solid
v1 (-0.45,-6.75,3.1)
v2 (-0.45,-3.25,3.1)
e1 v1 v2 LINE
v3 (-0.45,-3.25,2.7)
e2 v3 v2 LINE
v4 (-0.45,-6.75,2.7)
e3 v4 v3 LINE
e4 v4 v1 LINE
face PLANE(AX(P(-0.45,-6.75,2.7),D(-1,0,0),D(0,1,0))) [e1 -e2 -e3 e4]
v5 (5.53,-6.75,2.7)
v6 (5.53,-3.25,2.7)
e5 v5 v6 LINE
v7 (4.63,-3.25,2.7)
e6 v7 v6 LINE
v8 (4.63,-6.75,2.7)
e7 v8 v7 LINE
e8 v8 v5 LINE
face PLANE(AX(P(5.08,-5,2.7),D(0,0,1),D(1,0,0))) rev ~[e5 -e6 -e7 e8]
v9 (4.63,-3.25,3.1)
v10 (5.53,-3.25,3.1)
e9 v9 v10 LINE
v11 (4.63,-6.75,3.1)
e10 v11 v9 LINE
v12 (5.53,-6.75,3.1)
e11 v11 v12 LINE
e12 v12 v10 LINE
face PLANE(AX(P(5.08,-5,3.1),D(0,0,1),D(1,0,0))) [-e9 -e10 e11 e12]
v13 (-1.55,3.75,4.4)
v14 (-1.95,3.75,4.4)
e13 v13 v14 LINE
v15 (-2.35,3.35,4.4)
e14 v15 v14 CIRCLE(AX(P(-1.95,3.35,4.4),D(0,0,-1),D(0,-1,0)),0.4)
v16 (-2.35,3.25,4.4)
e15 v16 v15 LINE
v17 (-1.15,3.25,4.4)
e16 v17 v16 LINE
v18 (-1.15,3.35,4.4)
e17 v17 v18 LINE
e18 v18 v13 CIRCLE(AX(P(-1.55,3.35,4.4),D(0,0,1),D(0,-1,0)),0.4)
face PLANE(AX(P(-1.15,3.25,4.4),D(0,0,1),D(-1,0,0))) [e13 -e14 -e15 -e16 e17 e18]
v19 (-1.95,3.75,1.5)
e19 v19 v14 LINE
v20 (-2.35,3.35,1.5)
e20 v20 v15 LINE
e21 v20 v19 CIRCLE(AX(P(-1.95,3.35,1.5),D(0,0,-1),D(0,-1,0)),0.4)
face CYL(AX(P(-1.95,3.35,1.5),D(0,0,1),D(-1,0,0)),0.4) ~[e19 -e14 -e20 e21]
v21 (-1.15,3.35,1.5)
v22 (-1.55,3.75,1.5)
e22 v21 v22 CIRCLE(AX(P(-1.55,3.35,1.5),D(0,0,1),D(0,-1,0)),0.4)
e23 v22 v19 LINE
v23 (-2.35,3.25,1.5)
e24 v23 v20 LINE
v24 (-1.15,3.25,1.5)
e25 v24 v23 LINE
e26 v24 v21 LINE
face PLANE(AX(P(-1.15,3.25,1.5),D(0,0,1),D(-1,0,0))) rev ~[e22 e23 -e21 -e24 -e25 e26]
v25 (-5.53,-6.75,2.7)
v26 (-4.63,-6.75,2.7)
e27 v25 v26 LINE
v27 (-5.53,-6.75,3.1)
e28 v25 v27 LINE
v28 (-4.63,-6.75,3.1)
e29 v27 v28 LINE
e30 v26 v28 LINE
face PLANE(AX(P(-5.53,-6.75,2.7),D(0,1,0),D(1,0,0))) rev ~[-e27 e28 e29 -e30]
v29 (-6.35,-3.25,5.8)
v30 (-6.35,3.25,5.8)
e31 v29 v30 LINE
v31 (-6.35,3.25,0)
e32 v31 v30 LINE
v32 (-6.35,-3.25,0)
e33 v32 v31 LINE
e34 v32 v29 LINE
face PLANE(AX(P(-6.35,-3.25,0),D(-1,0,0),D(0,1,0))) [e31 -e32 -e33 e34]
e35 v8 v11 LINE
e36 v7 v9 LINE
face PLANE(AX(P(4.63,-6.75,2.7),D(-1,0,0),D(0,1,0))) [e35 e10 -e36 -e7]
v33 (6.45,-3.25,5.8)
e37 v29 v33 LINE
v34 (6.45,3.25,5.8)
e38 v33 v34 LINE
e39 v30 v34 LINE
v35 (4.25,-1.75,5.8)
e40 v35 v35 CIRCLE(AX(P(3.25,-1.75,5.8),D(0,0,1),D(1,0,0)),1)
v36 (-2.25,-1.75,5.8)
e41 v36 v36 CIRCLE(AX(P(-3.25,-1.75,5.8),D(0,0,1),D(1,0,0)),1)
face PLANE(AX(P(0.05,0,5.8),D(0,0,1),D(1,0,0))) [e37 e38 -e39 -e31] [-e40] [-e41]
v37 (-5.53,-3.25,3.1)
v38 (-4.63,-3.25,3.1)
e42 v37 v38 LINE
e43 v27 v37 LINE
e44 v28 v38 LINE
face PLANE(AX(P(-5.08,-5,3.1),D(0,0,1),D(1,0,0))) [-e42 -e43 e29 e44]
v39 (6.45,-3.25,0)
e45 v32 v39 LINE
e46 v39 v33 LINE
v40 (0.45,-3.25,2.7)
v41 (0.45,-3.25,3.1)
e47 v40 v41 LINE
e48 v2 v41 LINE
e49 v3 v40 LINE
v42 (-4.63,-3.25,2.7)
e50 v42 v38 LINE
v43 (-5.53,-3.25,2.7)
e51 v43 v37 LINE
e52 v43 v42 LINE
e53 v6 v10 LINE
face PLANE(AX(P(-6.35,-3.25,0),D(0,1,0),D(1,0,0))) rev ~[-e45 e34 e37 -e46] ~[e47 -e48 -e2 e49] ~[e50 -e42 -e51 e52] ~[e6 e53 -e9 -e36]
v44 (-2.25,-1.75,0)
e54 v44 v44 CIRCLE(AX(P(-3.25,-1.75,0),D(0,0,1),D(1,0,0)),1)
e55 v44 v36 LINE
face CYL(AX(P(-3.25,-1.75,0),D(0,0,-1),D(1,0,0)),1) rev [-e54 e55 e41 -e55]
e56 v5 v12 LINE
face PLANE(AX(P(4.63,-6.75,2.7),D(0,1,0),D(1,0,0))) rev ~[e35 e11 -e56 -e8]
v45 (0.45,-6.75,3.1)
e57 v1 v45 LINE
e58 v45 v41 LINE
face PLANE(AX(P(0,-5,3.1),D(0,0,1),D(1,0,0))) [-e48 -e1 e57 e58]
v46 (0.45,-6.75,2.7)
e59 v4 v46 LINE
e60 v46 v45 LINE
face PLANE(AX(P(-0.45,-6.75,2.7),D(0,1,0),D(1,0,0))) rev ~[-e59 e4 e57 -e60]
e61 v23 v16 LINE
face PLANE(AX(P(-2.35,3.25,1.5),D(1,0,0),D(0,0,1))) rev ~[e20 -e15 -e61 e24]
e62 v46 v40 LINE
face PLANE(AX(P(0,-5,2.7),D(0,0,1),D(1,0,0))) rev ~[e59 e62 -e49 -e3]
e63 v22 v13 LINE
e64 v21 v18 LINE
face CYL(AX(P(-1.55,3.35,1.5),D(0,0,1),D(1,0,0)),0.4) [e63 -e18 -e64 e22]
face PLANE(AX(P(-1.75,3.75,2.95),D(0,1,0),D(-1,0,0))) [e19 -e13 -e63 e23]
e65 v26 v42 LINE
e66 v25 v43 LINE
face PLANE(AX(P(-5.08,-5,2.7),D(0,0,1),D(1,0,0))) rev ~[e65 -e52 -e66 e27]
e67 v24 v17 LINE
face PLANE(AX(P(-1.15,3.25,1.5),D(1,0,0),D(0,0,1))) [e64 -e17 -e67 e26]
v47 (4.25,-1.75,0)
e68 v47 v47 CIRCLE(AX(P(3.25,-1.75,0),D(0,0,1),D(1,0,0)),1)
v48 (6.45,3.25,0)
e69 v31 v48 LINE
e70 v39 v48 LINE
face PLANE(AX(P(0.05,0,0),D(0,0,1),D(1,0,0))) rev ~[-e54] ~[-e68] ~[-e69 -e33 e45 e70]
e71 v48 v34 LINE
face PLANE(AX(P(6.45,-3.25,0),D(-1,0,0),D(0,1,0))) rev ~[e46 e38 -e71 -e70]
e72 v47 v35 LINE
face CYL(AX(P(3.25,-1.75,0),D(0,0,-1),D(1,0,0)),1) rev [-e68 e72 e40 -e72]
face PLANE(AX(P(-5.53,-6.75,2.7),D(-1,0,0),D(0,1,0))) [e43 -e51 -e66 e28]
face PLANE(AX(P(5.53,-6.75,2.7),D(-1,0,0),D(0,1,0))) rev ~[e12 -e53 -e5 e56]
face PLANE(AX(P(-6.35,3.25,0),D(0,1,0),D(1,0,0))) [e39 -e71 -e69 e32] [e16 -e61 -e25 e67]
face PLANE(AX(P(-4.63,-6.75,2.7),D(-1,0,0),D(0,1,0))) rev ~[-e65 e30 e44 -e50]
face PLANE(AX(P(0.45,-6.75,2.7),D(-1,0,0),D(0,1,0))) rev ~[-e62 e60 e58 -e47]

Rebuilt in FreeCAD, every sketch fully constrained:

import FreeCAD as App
import Part
import Sketcher
from FreeCAD import Vector


def edges_at(feature, points):
    """Names of the edges that pass closest to the given points."""
    edges = feature.Shape.Edges
    near = lambda p: min(range(len(edges)), key=lambda i: edges[i].distToShape(Part.Vertex(*p))[0])
    return sorted({f"Edge{near(p) + 1}" for p in points})

doc = App.newDocument("Part")
body = doc.addObject("PartDesign::Body", "Body")

# Sketch on XY plane
sketch1 = body.newObject("Sketcher::SketchObject", "Sketch")
sketch1.AttachmentSupport = (doc.getObject("XY_Plane"), [""])
sketch1.MapMode = "FlatFace"
sketch1.addGeometry(Part.LineSegment(Vector(-6.3, 3.2, 0), Vector(-6.3, -3.2, 0)), False)
sketch1.addGeometry(Part.LineSegment(Vector(-6.3, -3.2, 0), Vector(6.5, -3.2, 0)), False)
sketch1.addGeometry(Part.LineSegment(Vector(6.5, -3.2, 0), Vector(6.5, 3.2, 0)), False)
sketch1.addGeometry(Part.LineSegment(Vector(6.5, 3.2, 0), Vector(-6.3, 3.2, 0)), False)
sketch1.addGeometry(Part.Circle(Vector(-3.2, -1.8, 0), Vector(0, 0, 1), 1), False)
sketch1.addGeometry(Part.Circle(Vector(3.2, -1.8, 0), Vector(0, 0, 1), 1), False)
sketch1.addConstraint(Sketcher.Constraint("Coincident", 0, 2, 1, 1))
sketch1.addConstraint(Sketcher.Constraint("Coincident", 1, 2, 2, 1))
sketch1.addConstraint(Sketcher.Constraint("Coincident", 2, 2, 3, 1))
sketch1.addConstraint(Sketcher.Constraint("Coincident", 3, 2, 0, 1))
sketch1.addConstraint(Sketcher.Constraint("Vertical", 0))
sketch1.addConstraint(Sketcher.Constraint("Horizontal", 1))
sketch1.addConstraint(Sketcher.Constraint("Vertical", 2))
sketch1.addConstraint(Sketcher.Constraint("Horizontal", 3))
sketch1.addConstraint(Sketcher.Constraint("Equal", 4, 5))
sketch1.addConstraint(Sketcher.Constraint("Symmetric", 4, 3, 5, 3, -2))
sketch1.addConstraint(Sketcher.Constraint("Diameter", 4, 2.0))
sketch1.addConstraint(Sketcher.Constraint("DistanceX", 1, 1, 1, 2, 12.8))
sketch1.addConstraint(Sketcher.Constraint("DistanceY", 0, 2, 0, 1, 6.5))
sketch1.addConstraint(Sketcher.Constraint("DistanceY", 5, 3, 2, 2, 5.0))
sketch1.addConstraint(Sketcher.Constraint("DistanceX", 4, 3, 5, 3, 6.5))
sketch1.addConstraint(Sketcher.Constraint("DistanceX", 0, 2, 4, 3, 3.1))
sketch1.addConstraint(Sketcher.Constraint("DistanceY", 4, 3, -1, 1, 1.75))
pad1 = body.newObject("PartDesign::Pad", "Pad")
pad1.Profile = sketch1
pad1.Length = 5.8

# Sketch on XY plane
sketch2 = body.newObject("Sketcher::SketchObject", "Sketch001")
sketch2.AttachmentSupport = (doc.getObject("XY_Plane"), [""])
sketch2.MapMode = "FlatFace"
sketch2.AttachmentOffset = App.Placement(Vector(0, 0, 2.7), App.Rotation())
sketch2.addGeometry(Part.LineSegment(Vector(-5.5, -3.2, 0), Vector(-5.5, -6.8, 0)), False)
sketch2.addGeometry(Part.LineSegment(Vector(-5.5, -6.8, 0), Vector(-4.6, -6.8, 0)), False)
sketch2.addGeometry(Part.LineSegment(Vector(-4.6, -6.8, 0), Vector(-4.6, -3.2, 0)), False)
sketch2.addGeometry(Part.LineSegment(Vector(-4.6, -3.2, 0), Vector(-5.5, -3.2, 0)), False)
sketch2.addGeometry(Part.LineSegment(Vector(-0.5, -3.2, 0), Vector(-0.5, -6.8, 0)), False)
sketch2.addGeometry(Part.LineSegment(Vector(-0.5, -6.8, 0), Vector(0.5, -6.8, 0)), False)
sketch2.addGeometry(Part.LineSegment(Vector(0.5, -6.8, 0), Vector(0.5, -3.2, 0)), False)
sketch2.addGeometry(Part.LineSegment(Vector(0.5, -3.2, 0), Vector(-0.5, -3.2, 0)), False)
sketch2.addGeometry(Part.LineSegment(Vector(4.6, -3.2, 0), Vector(4.6, -6.8, 0)), False)
sketch2.addGeometry(Part.LineSegment(Vector(4.6, -6.8, 0), Vector(5.5, -6.8, 0)), False)
sketch2.addGeometry(Part.LineSegment(Vector(5.5, -6.8, 0), Vector(5.5, -3.2, 0)), False)
sketch2.addGeometry(Part.LineSegment(Vector(5.5, -3.2, 0), Vector(4.6, -3.2, 0)), False)
sketch2.addConstraint(Sketcher.Constraint("Coincident", 0, 2, 1, 1))
sketch2.addConstraint(Sketcher.Constraint("Coincident", 1, 2, 2, 1))
sketch2.addConstraint(Sketcher.Constraint("Coincident", 2, 2, 3, 1))
sketch2.addConstraint(Sketcher.Constraint("Coincident", 3, 2, 0, 1))
sketch2.addConstraint(Sketcher.Constraint("Coincident", 4, 2, 5, 1))
sketch2.addConstraint(Sketcher.Constraint("Coincident", 5, 2, 6, 1))
sketch2.addConstraint(Sketcher.Constraint("Coincident", 6, 2, 7, 1))
sketch2.addConstraint(Sketcher.Constraint("Coincident", 7, 2, 4, 1))
sketch2.addConstraint(Sketcher.Constraint("Coincident", 8, 2, 9, 1))
sketch2.addConstraint(Sketcher.Constraint("Coincident", 9, 2, 10, 1))
sketch2.addConstraint(Sketcher.Constraint("Coincident", 10, 2, 11, 1))
sketch2.addConstraint(Sketcher.Constraint("Coincident", 11, 2, 8, 1))
sketch2.addConstraint(Sketcher.Constraint("Vertical", 0))
sketch2.addConstraint(Sketcher.Constraint("Horizontal", 1))
sketch2.addConstraint(Sketcher.Constraint("Vertical", 2))
sketch2.addConstraint(Sketcher.Constraint("Horizontal", 3))
sketch2.addConstraint(Sketcher.Constraint("Vertical", 4))
sketch2.addConstraint(Sketcher.Constraint("Horizontal", 5))
sketch2.addConstraint(Sketcher.Constraint("Vertical", 6))
sketch2.addConstraint(Sketcher.Constraint("Horizontal", 7))
sketch2.addConstraint(Sketcher.Constraint("Vertical", 8))
sketch2.addConstraint(Sketcher.Constraint("Horizontal", 9))
sketch2.addConstraint(Sketcher.Constraint("Vertical", 10))
sketch2.addConstraint(Sketcher.Constraint("Horizontal", 11))
sketch2.addConstraint(Sketcher.Constraint("Symmetric", 1, 2, 8, 2, -2))
sketch2.addConstraint(Sketcher.Constraint("Symmetric", 3, 2, 10, 2, -2))
sketch2.addConstraint(Sketcher.Constraint("Horizontal", 1, 2, 4, 2))
sketch2.addConstraint(Sketcher.Constraint("Horizontal", 3, 2, 6, 2))
sketch2.addConstraint(Sketcher.Constraint("Equal", 3, 5))
sketch2.addConstraint(Sketcher.Constraint("DistanceX", 1, 1, 1, 2, 0.9))
sketch2.addConstraint(Sketcher.Constraint("DistanceY", 0, 2, 0, 1, 3.5))
sketch2.addConstraint(Sketcher.Constraint("DistanceX", 0, 2, -1, 1, 5.53))
sketch2.addConstraint(Sketcher.Constraint("DistanceY", 0, 2, -1, 1, 6.75))
sketch2.addConstraint(Sketcher.Constraint("DistanceX", 4, 2, -1, 1, 0.45))
pad2 = body.newObject("PartDesign::Pad", "Pad001")
pad2.Profile = sketch2
pad2.Length = 0.4

# Sketch on XZ plane
sketch3 = body.newObject("Sketcher::SketchObject", "Sketch002")
sketch3.AttachmentSupport = (doc.getObject("XZ_Plane"), [""])
sketch3.MapMode = "FlatFace"
sketch3.AttachmentOffset = App.Placement(Vector(0, 0, -3.25), App.Rotation())
sketch3.addGeometry(Part.LineSegment(Vector(-1.1, 4.4, 0), Vector(-1.1, 1.5, 0)), False)
sketch3.addGeometry(Part.LineSegment(Vector(-1.1, 1.5, 0), Vector(-2.4, 1.5, 0)), False)
sketch3.addGeometry(Part.LineSegment(Vector(-2.4, 1.5, 0), Vector(-2.4, 4.4, 0)), False)
sketch3.addGeometry(Part.LineSegment(Vector(-2.4, 4.4, 0), Vector(-1.1, 4.4, 0)), False)
sketch3.addConstraint(Sketcher.Constraint("Coincident", 0, 2, 1, 1))
sketch3.addConstraint(Sketcher.Constraint("Coincident", 1, 2, 2, 1))
sketch3.addConstraint(Sketcher.Constraint("Coincident", 2, 2, 3, 1))
sketch3.addConstraint(Sketcher.Constraint("Coincident", 3, 2, 0, 1))
sketch3.addConstraint(Sketcher.Constraint("Vertical", 0))
sketch3.addConstraint(Sketcher.Constraint("Horizontal", 1))
sketch3.addConstraint(Sketcher.Constraint("Vertical", 2))
sketch3.addConstraint(Sketcher.Constraint("Horizontal", 3))
sketch3.addConstraint(Sketcher.Constraint("DistanceX", 1, 2, 1, 1, 1.2))
sketch3.addConstraint(Sketcher.Constraint("DistanceY", 0, 2, 0, 1, 2.9))
sketch3.addConstraint(Sketcher.Constraint("DistanceY", -1, 1, 0, 2, 1.5))
sketch3.addConstraint(Sketcher.Constraint("DistanceX", 0, 2, -1, 1, 1.15))
pad3 = body.newObject("PartDesign::Pad", "Pad002")
pad3.Profile = sketch3
pad3.Length = 0.5
pad3.Reversed = True
doc.recompute()

fillet = body.newObject("PartDesign::Fillet", "Fillet")
fillet.Base = (pad3, edges_at(pad3, [(-2.35, 3.75, 2.95), (-1.15, 3.75, 2.95)]))
fillet.Radius = 0.4

doc.recompute()
